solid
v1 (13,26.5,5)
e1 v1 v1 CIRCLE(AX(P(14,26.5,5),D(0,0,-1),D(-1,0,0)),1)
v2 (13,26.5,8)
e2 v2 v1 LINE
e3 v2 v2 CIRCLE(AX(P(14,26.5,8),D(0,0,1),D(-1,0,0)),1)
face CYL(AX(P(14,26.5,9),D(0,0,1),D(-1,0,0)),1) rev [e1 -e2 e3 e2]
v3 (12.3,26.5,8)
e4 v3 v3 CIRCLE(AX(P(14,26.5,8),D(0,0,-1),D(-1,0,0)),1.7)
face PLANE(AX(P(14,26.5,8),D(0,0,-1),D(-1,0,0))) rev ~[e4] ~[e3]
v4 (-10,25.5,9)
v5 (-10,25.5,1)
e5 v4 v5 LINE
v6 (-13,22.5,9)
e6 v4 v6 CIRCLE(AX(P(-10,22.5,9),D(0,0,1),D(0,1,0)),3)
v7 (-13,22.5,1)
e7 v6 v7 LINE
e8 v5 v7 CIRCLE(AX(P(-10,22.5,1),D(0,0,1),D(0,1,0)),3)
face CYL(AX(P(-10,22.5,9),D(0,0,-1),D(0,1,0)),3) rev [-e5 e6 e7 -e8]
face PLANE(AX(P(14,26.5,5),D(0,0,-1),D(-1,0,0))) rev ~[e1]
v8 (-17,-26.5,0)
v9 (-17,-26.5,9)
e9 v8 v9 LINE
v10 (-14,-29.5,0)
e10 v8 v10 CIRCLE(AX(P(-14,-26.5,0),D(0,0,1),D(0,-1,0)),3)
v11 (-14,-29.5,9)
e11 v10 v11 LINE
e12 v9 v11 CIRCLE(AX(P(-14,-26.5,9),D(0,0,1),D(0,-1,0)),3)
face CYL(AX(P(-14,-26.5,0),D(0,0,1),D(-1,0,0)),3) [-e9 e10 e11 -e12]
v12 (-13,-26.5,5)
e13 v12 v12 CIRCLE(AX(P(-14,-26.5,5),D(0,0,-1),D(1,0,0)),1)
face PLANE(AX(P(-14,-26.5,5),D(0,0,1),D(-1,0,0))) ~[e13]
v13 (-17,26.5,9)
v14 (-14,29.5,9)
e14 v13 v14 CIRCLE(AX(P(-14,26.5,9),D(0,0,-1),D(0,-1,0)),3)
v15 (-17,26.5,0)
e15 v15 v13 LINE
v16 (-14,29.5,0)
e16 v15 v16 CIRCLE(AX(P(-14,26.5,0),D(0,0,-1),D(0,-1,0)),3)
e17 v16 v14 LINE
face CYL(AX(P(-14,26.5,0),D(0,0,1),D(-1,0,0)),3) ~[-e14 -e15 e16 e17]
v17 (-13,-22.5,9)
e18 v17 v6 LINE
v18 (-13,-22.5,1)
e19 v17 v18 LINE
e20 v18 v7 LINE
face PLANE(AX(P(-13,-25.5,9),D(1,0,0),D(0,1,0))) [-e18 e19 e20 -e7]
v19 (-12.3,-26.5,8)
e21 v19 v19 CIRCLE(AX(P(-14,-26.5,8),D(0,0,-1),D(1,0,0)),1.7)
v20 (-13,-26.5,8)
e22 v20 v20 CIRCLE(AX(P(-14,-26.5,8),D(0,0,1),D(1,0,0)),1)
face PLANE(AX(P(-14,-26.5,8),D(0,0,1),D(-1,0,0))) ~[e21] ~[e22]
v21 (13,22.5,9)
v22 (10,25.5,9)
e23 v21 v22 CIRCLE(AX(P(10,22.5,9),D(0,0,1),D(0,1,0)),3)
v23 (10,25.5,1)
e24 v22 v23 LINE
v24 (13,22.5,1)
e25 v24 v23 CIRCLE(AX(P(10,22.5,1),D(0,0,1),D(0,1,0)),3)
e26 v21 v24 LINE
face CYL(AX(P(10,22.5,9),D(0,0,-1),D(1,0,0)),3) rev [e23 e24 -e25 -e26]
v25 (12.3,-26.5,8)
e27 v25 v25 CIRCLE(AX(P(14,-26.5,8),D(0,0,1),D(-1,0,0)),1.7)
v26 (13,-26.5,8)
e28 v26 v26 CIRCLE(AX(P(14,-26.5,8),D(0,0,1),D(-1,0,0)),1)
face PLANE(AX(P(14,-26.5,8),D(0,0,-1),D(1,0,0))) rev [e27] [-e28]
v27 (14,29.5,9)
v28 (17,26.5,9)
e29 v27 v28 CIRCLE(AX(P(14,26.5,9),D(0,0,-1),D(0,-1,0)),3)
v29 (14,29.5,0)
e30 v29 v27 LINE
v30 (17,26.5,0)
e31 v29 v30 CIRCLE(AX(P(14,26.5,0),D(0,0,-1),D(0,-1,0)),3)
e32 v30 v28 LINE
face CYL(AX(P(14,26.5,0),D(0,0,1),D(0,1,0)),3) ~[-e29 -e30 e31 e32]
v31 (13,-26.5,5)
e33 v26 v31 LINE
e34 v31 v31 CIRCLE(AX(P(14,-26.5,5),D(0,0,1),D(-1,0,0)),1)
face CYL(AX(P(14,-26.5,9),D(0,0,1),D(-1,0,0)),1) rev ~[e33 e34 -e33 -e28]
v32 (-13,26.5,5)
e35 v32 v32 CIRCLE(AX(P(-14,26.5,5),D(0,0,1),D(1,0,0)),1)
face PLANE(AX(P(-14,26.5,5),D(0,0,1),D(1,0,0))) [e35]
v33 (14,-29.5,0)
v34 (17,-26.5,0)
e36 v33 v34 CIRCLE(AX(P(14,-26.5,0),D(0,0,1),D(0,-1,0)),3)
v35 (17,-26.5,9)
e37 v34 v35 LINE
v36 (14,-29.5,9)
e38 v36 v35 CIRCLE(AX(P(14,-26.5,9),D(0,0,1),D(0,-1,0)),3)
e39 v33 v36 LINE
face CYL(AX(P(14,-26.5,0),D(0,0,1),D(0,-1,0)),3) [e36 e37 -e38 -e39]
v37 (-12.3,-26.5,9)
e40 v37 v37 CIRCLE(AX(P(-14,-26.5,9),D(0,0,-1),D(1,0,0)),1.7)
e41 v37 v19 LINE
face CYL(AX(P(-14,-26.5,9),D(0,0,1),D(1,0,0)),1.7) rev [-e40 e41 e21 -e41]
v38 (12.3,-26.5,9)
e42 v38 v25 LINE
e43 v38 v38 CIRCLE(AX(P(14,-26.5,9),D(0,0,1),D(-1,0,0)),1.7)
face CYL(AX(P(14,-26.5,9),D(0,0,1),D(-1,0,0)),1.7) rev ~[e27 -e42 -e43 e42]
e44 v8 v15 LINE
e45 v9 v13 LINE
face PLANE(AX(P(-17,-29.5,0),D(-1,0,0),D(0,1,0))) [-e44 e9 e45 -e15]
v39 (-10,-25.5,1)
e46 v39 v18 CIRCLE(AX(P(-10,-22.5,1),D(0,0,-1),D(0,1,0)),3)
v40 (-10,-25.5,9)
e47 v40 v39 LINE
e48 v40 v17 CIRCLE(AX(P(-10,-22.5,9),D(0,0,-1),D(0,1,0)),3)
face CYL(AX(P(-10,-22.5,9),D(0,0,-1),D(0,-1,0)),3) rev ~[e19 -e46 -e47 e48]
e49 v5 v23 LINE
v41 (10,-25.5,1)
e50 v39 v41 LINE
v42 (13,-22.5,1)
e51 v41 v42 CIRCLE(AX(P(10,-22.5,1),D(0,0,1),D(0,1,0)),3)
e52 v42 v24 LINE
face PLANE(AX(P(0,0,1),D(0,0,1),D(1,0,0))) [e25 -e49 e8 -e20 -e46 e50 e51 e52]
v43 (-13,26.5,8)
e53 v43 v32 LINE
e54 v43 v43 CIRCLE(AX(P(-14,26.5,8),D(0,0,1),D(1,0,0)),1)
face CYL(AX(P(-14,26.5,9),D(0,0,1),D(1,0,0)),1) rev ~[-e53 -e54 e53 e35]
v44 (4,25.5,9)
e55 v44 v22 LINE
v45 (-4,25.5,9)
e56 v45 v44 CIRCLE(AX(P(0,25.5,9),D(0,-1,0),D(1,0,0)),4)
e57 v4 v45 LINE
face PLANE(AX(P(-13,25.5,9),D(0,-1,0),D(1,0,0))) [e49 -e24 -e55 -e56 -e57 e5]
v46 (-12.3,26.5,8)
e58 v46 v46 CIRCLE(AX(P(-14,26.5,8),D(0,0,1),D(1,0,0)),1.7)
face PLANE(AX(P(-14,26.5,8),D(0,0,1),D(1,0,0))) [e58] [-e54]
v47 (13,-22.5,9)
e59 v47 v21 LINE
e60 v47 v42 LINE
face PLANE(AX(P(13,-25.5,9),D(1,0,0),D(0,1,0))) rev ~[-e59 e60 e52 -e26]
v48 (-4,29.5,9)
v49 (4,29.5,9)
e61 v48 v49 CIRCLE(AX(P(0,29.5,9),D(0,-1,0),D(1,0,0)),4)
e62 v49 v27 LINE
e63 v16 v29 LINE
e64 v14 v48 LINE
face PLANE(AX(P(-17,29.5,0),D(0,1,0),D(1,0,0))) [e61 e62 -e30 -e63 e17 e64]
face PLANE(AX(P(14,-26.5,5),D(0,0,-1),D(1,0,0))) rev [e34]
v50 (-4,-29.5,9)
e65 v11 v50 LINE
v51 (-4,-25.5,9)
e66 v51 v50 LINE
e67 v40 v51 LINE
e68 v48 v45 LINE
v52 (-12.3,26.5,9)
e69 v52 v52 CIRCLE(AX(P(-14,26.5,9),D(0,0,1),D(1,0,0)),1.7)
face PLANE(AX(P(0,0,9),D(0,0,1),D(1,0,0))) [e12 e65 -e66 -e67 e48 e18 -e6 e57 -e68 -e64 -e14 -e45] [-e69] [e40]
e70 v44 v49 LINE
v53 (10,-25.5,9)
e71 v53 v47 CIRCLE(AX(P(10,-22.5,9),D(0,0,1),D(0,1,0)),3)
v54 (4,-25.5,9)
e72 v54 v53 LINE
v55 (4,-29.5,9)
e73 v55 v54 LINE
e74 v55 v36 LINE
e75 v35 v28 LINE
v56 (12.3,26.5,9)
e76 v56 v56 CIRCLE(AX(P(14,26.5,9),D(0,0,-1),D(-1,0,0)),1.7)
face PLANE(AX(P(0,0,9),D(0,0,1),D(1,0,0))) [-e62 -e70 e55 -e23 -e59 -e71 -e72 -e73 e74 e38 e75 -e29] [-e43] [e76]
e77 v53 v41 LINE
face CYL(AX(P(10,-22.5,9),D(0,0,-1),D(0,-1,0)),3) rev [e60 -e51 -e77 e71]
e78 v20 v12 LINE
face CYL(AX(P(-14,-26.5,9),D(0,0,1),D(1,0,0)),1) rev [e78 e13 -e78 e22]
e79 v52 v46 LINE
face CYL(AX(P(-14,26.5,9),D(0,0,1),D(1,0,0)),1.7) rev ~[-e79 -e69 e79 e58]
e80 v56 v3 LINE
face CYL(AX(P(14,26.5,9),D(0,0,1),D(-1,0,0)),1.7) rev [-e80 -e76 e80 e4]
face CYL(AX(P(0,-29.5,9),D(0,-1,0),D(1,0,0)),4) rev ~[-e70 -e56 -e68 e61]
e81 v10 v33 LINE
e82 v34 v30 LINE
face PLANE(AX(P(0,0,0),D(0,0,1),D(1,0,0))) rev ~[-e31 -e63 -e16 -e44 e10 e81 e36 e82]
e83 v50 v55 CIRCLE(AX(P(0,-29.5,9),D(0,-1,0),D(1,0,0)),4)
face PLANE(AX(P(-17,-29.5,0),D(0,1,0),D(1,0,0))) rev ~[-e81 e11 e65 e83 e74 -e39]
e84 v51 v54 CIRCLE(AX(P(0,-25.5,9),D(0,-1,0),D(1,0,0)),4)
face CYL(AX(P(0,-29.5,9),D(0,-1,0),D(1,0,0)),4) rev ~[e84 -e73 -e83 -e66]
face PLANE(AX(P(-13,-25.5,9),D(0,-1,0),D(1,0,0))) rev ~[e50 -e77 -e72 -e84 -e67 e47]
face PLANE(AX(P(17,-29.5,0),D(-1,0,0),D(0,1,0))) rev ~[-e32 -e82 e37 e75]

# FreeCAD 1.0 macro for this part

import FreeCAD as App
import Part
import Sketcher
from FreeCAD import Vector
Q = App.Units.Quantity


def edges_at(feature, points):
    """Names of the edges that pass closest to the given points."""
    edges = feature.Shape.Edges
    near = lambda p: min(range(len(edges)), key=lambda i: edges[i].distToShape(Part.Vertex(*p))[0])
    return sorted({f"Edge{near(p) + 1}" for p in points})


def add_polygon(sketch, points):
    """Adds a closed chain of lines whose ends are joined by coincident constraints."""
    first, n = sketch.GeometryCount, len(points)
    for a, b in zip(points, points[1:] + points[:1]):
        sketch.addGeometry(Part.LineSegment(App.Vector(*a, 0), App.Vector(*b, 0)), False)
    for i in range(n):
        sketch.addConstraint(Sketcher.Constraint("Coincident", first + i, 2, first + (i + 1) % n, 1))

doc = App.newDocument("Part")
body = doc.addObject("PartDesign::Body", "Body")

sketch1 = body.newObject("Sketcher::SketchObject", "Sketch")
sketch1.AttachmentSupport = (doc.getObject("XY_Plane"), [""])
sketch1.MapMode = "FlatFace"
add_polygon(sketch1, [(-17, 30), (-17, -30), (17, -30), (17, 30)])
sketch1.addConstraint([
    Sketcher.Constraint("Vertical", 0),
    Sketcher.Constraint("Horizontal", 1),
    Sketcher.Constraint("Vertical", 2),
    Sketcher.Constraint("Horizontal", 3),
    Sketcher.Constraint("Symmetric", 0, 2, 2, 2, -1, 1),
    Sketcher.Constraint("DistanceX", 1, 1, 1, 2, Q("34 mm")),
    Sketcher.Constraint("DistanceY", 0, 2, 0, 1, Q("59 mm")),
])
pad1 = body.newObject("PartDesign::Pad", "Pad")
pad1.Profile = sketch1
pad1.Length = 9

sketch2 = body.newObject("Sketcher::SketchObject", "Sketch001")
sketch2.AttachmentSupport = (doc.getObject("XY_Plane"), [""])
sketch2.MapMode = "FlatFace"
sketch2.AttachmentOffset = App.Placement(Vector(0, 0, 9), App.Rotation())
add_polygon(sketch2, [(-13, 26), (-13, -26), (13, -26), (13, 26)])
sketch2.addConstraint([
    Sketcher.Constraint("Vertical", 0),
    Sketcher.Constraint("Horizontal", 1),
    Sketcher.Constraint("Vertical", 2),
    Sketcher.Constraint("Horizontal", 3),
    Sketcher.Constraint("Symmetric", 0, 2, 2, 2, -1, 1),
    Sketcher.Constraint("DistanceX", 1, 1, 1, 2, Q("26 mm")),
    Sketcher.Constraint("DistanceY", 0, 2, 0, 1, Q("51 mm")),
])
pocket1 = body.newObject("PartDesign::Pocket", "Pocket")
pocket1.Profile = sketch2
pocket1.Length = 8
doc.recompute()

fillet = body.newObject("PartDesign::Fillet", "Fillet")
fillet.Base = (pocket1, edges_at(pocket1, [
    (-13, 25.5, 5),
    (-17, 29.5, 4.5),
    (17, 29.5, 4.5),
    (13, 25.5, 5),
    (17, -29.5, 4.5),
    (13, -25.5, 5),
    (-13, -25.5, 5),
    (-17, -29.5, 4.5),
]))
fillet.Radius = 3

sketch3 = body.newObject("Sketcher::SketchObject", "Sketch002")
sketch3.AttachmentSupport = (doc.getObject("XY_Plane"), [""])
sketch3.MapMode = "FlatFace"
sketch3.AttachmentOffset = App.Placement(Vector(0, 0, 9), App.Rotation())
sketch3.addGeometry(Part.Circle(Vector(-14, 26.5, 0), Vector(0, 0, 1), 1), False)
sketch3.addConstraint([
    Sketcher.Constraint("Diameter", 0, Q("2 mm")),
    Sketcher.Constraint("DistanceX", 0, 3, -1, 1, Q("14 mm")),
    Sketcher.Constraint("DistanceY", -1, 1, 0, 3, Q("26.5 mm")),
])
pocket2 = body.newObject("PartDesign::Pocket", "Pocket001")
pocket2.Profile = sketch3
pocket2.Length = 4

sketch4 = body.newObject("Sketcher::SketchObject", "Sketch003")
sketch4.AttachmentSupport = (doc.getObject("XY_Plane"), [""])
sketch4.MapMode = "FlatFace"
sketch4.AttachmentOffset = App.Placement(Vector(0, 0, 9), App.Rotation())
sketch4.addGeometry(Part.Circle(Vector(14, 26.5, 0), Vector(0, 0, 1), 1), False)
sketch4.addConstraint([
    Sketcher.Constraint("Diameter", 0, Q("2 mm")),
    Sketcher.Constraint("DistanceX", -1, 1, 0, 3, Q("14 mm")),
    Sketcher.Constraint("DistanceY", -1, 1, 0, 3, Q("26.5 mm")),
])
pocket3 = body.newObject("PartDesign::Pocket", "Pocket002")
pocket3.Profile = sketch4
pocket3.Length = 4
doc.recompute()

mirrored = body.newObject("PartDesign::Mirrored", "Mirrored")
mirrored.Originals = [pocket2, pocket3]
mirrored.MirrorPlane = (doc.getObject("XZ_Plane"), [""])
body.Tip = mirrored

sketch5 = body.newObject("Sketcher::SketchObject", "Sketch004")
sketch5.AttachmentSupport = (doc.getObject("XY_Plane"), [""])
sketch5.MapMode = "FlatFace"
sketch5.AttachmentOffset = App.Placement(Vector(0, 0, 9), App.Rotation())
sketch5.addGeometry(Part.Circle(Vector(-14, 26.5, 0), Vector(0, 0, 1), 1.7), False)
sketch5.addConstraint([
    Sketcher.Constraint("Diameter", 0, Q("3.4 mm")),
    Sketcher.Constraint("DistanceX", 0, 3, -1, 1, Q("14 mm")),
    Sketcher.Constraint("DistanceY", -1, 1, 0, 3, Q("26.5 mm")),
])
pocket4 = body.newObject("PartDesign::Pocket", "Pocket003")
pocket4.Profile = sketch5
pocket4.Length = 1

sketch6 = body.newObject("Sketcher::SketchObject", "Sketch005")
sketch6.AttachmentSupport = (doc.getObject("XY_Plane"), [""])
sketch6.MapMode = "FlatFace"
sketch6.AttachmentOffset = App.Placement(Vector(0, 0, 9), App.Rotation())
sketch6.addGeometry(Part.Circle(Vector(14, 26.5, 0), Vector(0, 0, 1), 1.7), False)
sketch6.addConstraint([
    Sketcher.Constraint("Diameter", 0, Q("3.4 mm")),
    Sketcher.Constraint("DistanceX", -1, 1, 0, 3, Q("14 mm")),
    Sketcher.Constraint("DistanceY", -1, 1, 0, 3, Q("26.5 mm")),
])
pocket5 = body.newObject("PartDesign::Pocket", "Pocket004")
pocket5.Profile = sketch6
pocket5.Length = 1
doc.recompute()

mirrored2 = body.newObject("PartDesign::Mirrored", "Mirrored001")
mirrored2.Originals = [pocket4, pocket5]
mirrored2.MirrorPlane = (doc.getObject("XZ_Plane"), [""])
body.Tip = mirrored2

sketch7 = body.newObject("Sketcher::SketchObject", "Sketch006")
sketch7.AttachmentSupport = (doc.getObject("XZ_Plane"), [""])
sketch7.MapMode = "FlatFace"
sketch7.AttachmentOffset = App.Placement(Vector(0, 0, 29.5), App.Rotation())
sketch7.addGeometry(Part.Circle(Vector(0, 9, 0), Vector(0, 0, 1), 4), False)
sketch7.addConstraint([
    Sketcher.Constraint("PointOnObject", 0, 3, -2),
    Sketcher.Constraint("Diameter", 0, Q("8 mm")),
    Sketcher.Constraint("DistanceY", -1, 1, 0, 3, Q("9 mm")),
])
pocket6 = body.newObject("PartDesign::Pocket", "Pocket005")
pocket6.Profile = sketch7
pocket6.Type = "ThroughAll"

doc.recompute()
